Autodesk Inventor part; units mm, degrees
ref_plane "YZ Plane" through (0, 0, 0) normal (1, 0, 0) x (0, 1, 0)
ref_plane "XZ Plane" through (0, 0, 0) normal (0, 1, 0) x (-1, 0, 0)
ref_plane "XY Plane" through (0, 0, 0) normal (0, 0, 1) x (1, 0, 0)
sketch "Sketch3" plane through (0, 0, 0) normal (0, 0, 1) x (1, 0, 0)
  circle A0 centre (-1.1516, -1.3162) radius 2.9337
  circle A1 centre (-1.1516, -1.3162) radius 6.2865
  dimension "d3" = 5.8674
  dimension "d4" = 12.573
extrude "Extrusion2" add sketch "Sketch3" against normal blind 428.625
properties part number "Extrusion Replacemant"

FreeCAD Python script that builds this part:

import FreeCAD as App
import Part
import Sketcher
Q = App.Units.Quantity

doc = App.newDocument("Part")
body = doc.addObject("PartDesign::Body", "Body")

# Sketch on XY plane
sketch1 = body.newObject("Sketcher::SketchObject", "Sketch")
sketch1.AttachmentSupport = (doc.getObject("XY_Plane"), [""])
sketch1.MapMode = "FlatFace"
sketch1.addGeometry([
    Part.Circle(App.Vector(-1.2, -1.3, 0), App.Vector(0, 0, 1), 6.3),
    Part.Circle(App.Vector(-1.2, -1.3, 0), App.Vector(0, 0, 1), 2.9),
], False)
sketch1.addConstraint([
    Sketcher.Constraint("Coincident", 1, 3, 0, 3),
    Sketcher.Constraint("Diameter", 0, Q("0.495 in")),
    Sketcher.Constraint("Diameter", 1, Q("0.231 in")),
    Sketcher.Constraint("DistanceX", 0, 3, -1, 1, Q("1.1516 mm")),
    Sketcher.Constraint("DistanceY", 0, 3, -1, 1, Q("1.3162 mm")),
])
pad1 = body.newObject("PartDesign::Pad", "Pad")
pad1.Profile = sketch1
pad1.Length = Q("16.875 in")
pad1.Reversed = True

doc.recompute()
